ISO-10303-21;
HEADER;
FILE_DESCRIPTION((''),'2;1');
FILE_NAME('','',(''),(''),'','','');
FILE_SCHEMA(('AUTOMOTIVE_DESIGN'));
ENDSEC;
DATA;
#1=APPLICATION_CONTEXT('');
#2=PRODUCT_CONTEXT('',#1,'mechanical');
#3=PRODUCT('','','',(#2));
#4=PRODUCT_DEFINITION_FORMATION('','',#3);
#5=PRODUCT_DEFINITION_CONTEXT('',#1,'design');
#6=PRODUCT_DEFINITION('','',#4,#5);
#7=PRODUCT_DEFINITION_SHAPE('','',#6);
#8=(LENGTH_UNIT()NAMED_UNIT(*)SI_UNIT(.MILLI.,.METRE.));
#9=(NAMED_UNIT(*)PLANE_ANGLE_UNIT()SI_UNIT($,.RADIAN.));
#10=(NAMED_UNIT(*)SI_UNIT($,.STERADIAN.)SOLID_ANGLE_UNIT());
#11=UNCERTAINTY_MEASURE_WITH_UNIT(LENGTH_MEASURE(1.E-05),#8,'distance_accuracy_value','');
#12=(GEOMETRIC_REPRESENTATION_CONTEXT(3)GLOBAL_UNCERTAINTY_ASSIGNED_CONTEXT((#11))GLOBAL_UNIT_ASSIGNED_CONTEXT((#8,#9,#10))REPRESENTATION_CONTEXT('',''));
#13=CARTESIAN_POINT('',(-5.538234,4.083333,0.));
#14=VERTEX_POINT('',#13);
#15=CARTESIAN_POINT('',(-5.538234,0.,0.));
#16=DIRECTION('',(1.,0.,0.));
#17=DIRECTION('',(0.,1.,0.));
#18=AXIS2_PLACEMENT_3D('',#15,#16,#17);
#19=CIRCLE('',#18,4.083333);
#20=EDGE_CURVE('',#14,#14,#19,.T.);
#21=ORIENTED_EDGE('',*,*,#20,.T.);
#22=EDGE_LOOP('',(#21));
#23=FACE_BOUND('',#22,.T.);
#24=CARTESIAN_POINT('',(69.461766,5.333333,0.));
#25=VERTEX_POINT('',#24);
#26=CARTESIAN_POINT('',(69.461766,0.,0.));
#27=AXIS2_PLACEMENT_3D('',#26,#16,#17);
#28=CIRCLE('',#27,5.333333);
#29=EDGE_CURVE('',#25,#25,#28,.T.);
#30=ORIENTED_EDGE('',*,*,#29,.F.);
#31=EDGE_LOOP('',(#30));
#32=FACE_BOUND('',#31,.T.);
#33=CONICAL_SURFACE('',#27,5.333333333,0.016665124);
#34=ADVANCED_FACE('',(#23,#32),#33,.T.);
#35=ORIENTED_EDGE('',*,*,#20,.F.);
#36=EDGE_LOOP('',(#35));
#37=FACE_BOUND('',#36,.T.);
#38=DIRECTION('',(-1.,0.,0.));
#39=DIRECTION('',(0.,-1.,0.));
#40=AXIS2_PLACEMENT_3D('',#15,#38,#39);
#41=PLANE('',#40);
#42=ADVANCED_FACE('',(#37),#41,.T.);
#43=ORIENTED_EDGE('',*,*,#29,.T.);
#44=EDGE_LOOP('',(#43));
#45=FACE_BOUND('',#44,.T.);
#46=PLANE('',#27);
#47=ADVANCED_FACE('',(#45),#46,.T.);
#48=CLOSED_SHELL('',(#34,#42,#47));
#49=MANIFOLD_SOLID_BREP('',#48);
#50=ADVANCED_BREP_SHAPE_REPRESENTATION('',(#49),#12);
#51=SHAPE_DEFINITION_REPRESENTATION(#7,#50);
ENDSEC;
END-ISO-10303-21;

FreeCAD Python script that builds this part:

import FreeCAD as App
import Part
import Sketcher
from FreeCAD import Vector

doc = App.newDocument("Part")
body = doc.addObject("PartDesign::Body", "Body")

# Sketch on XY plane
sketch1 = doc.addObject("Sketcher::SketchObject", "Sketch")
body.addObject(sketch1)
sketch1.AttachmentSupport = (doc.XY_Plane, [""])
sketch1.MapMode = "FlatFace"
sketch1.addGeometry(Part.LineSegment(Vector(-10.5, 2.5, 0), Vector(-10.5, 0, 0)), False)
sketch1.addGeometry(Part.LineSegment(Vector(-10.5, 0, 0), Vector(79.5, 0, 0)), False)
sketch1.addGeometry(Part.LineSegment(Vector(79.5, 0, 0), Vector(79.5, 4, 0)), False)
sketch1.addGeometry(Part.LineSegment(Vector(79.5, 4, 0), Vector(-10.5, 2.5, 0)), False)
sketch1.addConstraint(Sketcher.Constraint("Coincident", 0, 2, 1, 1))
sketch1.addConstraint(Sketcher.Constraint("Coincident", 1, 2, 2, 1))
sketch1.addConstraint(Sketcher.Constraint("Coincident", 2, 2, 3, 1))
sketch1.addConstraint(Sketcher.Constraint("Coincident", 3, 2, 0, 1))
sketch1.addConstraint(Sketcher.Constraint("Vertical", 0))
sketch1.addConstraint(Sketcher.Constraint("Horizontal", 1))
sketch1.addConstraint(Sketcher.Constraint("Vertical", 2))
sketch1.addConstraint(Sketcher.Constraint("PointOnObject", 0, 2, -1))
sketch1.addConstraint(Sketcher.Constraint("DistanceX", 1, 1, 1, 2, 90.0))
sketch1.addConstraint(Sketcher.Constraint("DistanceY", 2, 1, 2, 2, 4.0))
sketch1.addConstraint(Sketcher.Constraint("DistanceY", 0, 2, 0, 1, 2.5))
sketch1.addConstraint(Sketcher.Constraint("DistanceX", 0, 2, -1, 1, 10.538234))
revolution = doc.addObject("PartDesign::Revolution", "Revolution")
body.addObject(revolution)
revolution.Profile = sketch1
revolution.ReferenceAxis = (sketch1, ["H_Axis"])
revolution.Angle = 360

# Sketch on YZ plane
sketch2 = doc.addObject("Sketcher::SketchObject", "Sketch001")
body.addObject(sketch2)
sketch2.AttachmentSupport = (doc.YZ_Plane, [""])
sketch2.MapMode = "FlatFace"
sketch2.AttachmentOffset = App.Placement(Vector(0, 0, 79.461766), App.Rotation())
sketch2.addGeometry(Part.Circle(Vector(0, 0, 0), Vector(0, 0, 1), 4.2), False)
sketch2.addConstraint(Sketcher.Constraint("Coincident", 0, 3, -1, 1))
sketch2.addConstraint(Sketcher.Constraint("Diameter", 0, 8.350079))
pocket1 = doc.addObject("PartDesign::Pocket", "Pocket")
body.addObject(pocket1)
pocket1.Profile = sketch2
pocket1.Length = 5

# Sketch on YZ plane
sketch3 = doc.addObject("Sketcher::SketchObject", "Sketch002")
body.addObject(sketch3)
sketch3.AttachmentSupport = (doc.YZ_Plane, [""])
sketch3.MapMode = "FlatFace"
sketch3.AttachmentOffset = App.Placement(Vector(0, 0, 74.461766), App.Rotation())
sketch3.addGeometry(Part.Circle(Vector(0, 0, 0), Vector(0, 0, 1), 4.4), False)
sketch3.addConstraint(Sketcher.Constraint("Coincident", 0, 3, -1, 1))
sketch3.addConstraint(Sketcher.Constraint("Diameter", 0, 8.749957))
pocket2 = doc.addObject("PartDesign::Pocket", "Pocket001")
body.addObject(pocket2)
pocket2.Profile = sketch3
pocket2.Length = 5

# Sketch on YZ plane
sketch4 = doc.addObject("Sketcher::SketchObject", "Sketch003")
body.addObject(sketch4)
sketch4.AttachmentSupport = (doc.YZ_Plane, [""])
sketch4.MapMode = "FlatFace"
sketch4.AttachmentOffset = App.Placement(Vector(0, 0, -10.538234), App.Rotation())
sketch4.addGeometry(Part.Circle(Vector(0, 0, 0), Vector(0, 0, 1), 3.5), False)
sketch4.addConstraint(Sketcher.Constraint("Coincident", 0, 3, -1, 1))
sketch4.addConstraint(Sketcher.Constraint("Diameter", 0, 7.086915))
pocket3 = doc.addObject("PartDesign::Pocket", "Pocket002")
body.addObject(pocket3)
pocket3.Profile = sketch4
pocket3.Length = 5
pocket3.Reversed = True

# Sketch on XY plane
sketch5 = doc.addObject("Sketcher::SketchObject", "Sketch004")
body.addObject(sketch5)
sketch5.AttachmentSupport = (doc.XY_Plane, [""])
sketch5.MapMode = "FlatFace"
sketch5.addGeometry(Part.LineSegment(Vector(69.5, 3.8, 0), Vector(69.5, 5.3, 0)), False)
sketch5.addGeometry(Part.LineSegment(Vector(69.5, 5.3, 0), Vector(-5.5, 4.1, 0)), False)
sketch5.addGeometry(Part.LineSegment(Vector(-5.5, 4.1, 0), Vector(-5.5, 2.6, 0)), False)
sketch5.addGeometry(Part.LineSegment(Vector(-5.5, 2.6, 0), Vector(69.5, 3.8, 0)), False)
sketch5.addConstraint(Sketcher.Constraint("Coincident", 0, 2, 1, 1))
sketch5.addConstraint(Sketcher.Constraint("Coincident", 1, 2, 2, 1))
sketch5.addConstraint(Sketcher.Constraint("Coincident", 2, 2, 3, 1))
sketch5.addConstraint(Sketcher.Constraint("Coincident", 3, 2, 0, 1))
sketch5.addConstraint(Sketcher.Constraint("Vertical", 0))
sketch5.addConstraint(Sketcher.Constraint("Vertical", 2))
sketch5.addConstraint(Sketcher.Constraint("Parallel", 1, 3))
sketch5.addConstraint(Sketcher.Constraint("DistanceY", 0, 1, 0, 2, 1.5))
sketch5.addConstraint(Sketcher.Constraint("DistanceX", 1, 2, 0, 2, 75.0))
sketch5.addConstraint(Sketcher.Constraint("DistanceY", 1, 2, 0, 2, 1.25))
sketch5.addConstraint(Sketcher.Constraint("DistanceX", -1, 1, 0, 2, 69.461766))
sketch5.addConstraint(Sketcher.Constraint("DistanceY", -1, 1, 0, 2, 5.333333))
revolution2 = doc.addObject("PartDesign::Revolution", "Revolution001")
body.addObject(revolution2)
revolution2.Profile = sketch5
revolution2.ReferenceAxis = (sketch5, ["H_Axis"])
revolution2.Angle = 360

doc.recompute()
